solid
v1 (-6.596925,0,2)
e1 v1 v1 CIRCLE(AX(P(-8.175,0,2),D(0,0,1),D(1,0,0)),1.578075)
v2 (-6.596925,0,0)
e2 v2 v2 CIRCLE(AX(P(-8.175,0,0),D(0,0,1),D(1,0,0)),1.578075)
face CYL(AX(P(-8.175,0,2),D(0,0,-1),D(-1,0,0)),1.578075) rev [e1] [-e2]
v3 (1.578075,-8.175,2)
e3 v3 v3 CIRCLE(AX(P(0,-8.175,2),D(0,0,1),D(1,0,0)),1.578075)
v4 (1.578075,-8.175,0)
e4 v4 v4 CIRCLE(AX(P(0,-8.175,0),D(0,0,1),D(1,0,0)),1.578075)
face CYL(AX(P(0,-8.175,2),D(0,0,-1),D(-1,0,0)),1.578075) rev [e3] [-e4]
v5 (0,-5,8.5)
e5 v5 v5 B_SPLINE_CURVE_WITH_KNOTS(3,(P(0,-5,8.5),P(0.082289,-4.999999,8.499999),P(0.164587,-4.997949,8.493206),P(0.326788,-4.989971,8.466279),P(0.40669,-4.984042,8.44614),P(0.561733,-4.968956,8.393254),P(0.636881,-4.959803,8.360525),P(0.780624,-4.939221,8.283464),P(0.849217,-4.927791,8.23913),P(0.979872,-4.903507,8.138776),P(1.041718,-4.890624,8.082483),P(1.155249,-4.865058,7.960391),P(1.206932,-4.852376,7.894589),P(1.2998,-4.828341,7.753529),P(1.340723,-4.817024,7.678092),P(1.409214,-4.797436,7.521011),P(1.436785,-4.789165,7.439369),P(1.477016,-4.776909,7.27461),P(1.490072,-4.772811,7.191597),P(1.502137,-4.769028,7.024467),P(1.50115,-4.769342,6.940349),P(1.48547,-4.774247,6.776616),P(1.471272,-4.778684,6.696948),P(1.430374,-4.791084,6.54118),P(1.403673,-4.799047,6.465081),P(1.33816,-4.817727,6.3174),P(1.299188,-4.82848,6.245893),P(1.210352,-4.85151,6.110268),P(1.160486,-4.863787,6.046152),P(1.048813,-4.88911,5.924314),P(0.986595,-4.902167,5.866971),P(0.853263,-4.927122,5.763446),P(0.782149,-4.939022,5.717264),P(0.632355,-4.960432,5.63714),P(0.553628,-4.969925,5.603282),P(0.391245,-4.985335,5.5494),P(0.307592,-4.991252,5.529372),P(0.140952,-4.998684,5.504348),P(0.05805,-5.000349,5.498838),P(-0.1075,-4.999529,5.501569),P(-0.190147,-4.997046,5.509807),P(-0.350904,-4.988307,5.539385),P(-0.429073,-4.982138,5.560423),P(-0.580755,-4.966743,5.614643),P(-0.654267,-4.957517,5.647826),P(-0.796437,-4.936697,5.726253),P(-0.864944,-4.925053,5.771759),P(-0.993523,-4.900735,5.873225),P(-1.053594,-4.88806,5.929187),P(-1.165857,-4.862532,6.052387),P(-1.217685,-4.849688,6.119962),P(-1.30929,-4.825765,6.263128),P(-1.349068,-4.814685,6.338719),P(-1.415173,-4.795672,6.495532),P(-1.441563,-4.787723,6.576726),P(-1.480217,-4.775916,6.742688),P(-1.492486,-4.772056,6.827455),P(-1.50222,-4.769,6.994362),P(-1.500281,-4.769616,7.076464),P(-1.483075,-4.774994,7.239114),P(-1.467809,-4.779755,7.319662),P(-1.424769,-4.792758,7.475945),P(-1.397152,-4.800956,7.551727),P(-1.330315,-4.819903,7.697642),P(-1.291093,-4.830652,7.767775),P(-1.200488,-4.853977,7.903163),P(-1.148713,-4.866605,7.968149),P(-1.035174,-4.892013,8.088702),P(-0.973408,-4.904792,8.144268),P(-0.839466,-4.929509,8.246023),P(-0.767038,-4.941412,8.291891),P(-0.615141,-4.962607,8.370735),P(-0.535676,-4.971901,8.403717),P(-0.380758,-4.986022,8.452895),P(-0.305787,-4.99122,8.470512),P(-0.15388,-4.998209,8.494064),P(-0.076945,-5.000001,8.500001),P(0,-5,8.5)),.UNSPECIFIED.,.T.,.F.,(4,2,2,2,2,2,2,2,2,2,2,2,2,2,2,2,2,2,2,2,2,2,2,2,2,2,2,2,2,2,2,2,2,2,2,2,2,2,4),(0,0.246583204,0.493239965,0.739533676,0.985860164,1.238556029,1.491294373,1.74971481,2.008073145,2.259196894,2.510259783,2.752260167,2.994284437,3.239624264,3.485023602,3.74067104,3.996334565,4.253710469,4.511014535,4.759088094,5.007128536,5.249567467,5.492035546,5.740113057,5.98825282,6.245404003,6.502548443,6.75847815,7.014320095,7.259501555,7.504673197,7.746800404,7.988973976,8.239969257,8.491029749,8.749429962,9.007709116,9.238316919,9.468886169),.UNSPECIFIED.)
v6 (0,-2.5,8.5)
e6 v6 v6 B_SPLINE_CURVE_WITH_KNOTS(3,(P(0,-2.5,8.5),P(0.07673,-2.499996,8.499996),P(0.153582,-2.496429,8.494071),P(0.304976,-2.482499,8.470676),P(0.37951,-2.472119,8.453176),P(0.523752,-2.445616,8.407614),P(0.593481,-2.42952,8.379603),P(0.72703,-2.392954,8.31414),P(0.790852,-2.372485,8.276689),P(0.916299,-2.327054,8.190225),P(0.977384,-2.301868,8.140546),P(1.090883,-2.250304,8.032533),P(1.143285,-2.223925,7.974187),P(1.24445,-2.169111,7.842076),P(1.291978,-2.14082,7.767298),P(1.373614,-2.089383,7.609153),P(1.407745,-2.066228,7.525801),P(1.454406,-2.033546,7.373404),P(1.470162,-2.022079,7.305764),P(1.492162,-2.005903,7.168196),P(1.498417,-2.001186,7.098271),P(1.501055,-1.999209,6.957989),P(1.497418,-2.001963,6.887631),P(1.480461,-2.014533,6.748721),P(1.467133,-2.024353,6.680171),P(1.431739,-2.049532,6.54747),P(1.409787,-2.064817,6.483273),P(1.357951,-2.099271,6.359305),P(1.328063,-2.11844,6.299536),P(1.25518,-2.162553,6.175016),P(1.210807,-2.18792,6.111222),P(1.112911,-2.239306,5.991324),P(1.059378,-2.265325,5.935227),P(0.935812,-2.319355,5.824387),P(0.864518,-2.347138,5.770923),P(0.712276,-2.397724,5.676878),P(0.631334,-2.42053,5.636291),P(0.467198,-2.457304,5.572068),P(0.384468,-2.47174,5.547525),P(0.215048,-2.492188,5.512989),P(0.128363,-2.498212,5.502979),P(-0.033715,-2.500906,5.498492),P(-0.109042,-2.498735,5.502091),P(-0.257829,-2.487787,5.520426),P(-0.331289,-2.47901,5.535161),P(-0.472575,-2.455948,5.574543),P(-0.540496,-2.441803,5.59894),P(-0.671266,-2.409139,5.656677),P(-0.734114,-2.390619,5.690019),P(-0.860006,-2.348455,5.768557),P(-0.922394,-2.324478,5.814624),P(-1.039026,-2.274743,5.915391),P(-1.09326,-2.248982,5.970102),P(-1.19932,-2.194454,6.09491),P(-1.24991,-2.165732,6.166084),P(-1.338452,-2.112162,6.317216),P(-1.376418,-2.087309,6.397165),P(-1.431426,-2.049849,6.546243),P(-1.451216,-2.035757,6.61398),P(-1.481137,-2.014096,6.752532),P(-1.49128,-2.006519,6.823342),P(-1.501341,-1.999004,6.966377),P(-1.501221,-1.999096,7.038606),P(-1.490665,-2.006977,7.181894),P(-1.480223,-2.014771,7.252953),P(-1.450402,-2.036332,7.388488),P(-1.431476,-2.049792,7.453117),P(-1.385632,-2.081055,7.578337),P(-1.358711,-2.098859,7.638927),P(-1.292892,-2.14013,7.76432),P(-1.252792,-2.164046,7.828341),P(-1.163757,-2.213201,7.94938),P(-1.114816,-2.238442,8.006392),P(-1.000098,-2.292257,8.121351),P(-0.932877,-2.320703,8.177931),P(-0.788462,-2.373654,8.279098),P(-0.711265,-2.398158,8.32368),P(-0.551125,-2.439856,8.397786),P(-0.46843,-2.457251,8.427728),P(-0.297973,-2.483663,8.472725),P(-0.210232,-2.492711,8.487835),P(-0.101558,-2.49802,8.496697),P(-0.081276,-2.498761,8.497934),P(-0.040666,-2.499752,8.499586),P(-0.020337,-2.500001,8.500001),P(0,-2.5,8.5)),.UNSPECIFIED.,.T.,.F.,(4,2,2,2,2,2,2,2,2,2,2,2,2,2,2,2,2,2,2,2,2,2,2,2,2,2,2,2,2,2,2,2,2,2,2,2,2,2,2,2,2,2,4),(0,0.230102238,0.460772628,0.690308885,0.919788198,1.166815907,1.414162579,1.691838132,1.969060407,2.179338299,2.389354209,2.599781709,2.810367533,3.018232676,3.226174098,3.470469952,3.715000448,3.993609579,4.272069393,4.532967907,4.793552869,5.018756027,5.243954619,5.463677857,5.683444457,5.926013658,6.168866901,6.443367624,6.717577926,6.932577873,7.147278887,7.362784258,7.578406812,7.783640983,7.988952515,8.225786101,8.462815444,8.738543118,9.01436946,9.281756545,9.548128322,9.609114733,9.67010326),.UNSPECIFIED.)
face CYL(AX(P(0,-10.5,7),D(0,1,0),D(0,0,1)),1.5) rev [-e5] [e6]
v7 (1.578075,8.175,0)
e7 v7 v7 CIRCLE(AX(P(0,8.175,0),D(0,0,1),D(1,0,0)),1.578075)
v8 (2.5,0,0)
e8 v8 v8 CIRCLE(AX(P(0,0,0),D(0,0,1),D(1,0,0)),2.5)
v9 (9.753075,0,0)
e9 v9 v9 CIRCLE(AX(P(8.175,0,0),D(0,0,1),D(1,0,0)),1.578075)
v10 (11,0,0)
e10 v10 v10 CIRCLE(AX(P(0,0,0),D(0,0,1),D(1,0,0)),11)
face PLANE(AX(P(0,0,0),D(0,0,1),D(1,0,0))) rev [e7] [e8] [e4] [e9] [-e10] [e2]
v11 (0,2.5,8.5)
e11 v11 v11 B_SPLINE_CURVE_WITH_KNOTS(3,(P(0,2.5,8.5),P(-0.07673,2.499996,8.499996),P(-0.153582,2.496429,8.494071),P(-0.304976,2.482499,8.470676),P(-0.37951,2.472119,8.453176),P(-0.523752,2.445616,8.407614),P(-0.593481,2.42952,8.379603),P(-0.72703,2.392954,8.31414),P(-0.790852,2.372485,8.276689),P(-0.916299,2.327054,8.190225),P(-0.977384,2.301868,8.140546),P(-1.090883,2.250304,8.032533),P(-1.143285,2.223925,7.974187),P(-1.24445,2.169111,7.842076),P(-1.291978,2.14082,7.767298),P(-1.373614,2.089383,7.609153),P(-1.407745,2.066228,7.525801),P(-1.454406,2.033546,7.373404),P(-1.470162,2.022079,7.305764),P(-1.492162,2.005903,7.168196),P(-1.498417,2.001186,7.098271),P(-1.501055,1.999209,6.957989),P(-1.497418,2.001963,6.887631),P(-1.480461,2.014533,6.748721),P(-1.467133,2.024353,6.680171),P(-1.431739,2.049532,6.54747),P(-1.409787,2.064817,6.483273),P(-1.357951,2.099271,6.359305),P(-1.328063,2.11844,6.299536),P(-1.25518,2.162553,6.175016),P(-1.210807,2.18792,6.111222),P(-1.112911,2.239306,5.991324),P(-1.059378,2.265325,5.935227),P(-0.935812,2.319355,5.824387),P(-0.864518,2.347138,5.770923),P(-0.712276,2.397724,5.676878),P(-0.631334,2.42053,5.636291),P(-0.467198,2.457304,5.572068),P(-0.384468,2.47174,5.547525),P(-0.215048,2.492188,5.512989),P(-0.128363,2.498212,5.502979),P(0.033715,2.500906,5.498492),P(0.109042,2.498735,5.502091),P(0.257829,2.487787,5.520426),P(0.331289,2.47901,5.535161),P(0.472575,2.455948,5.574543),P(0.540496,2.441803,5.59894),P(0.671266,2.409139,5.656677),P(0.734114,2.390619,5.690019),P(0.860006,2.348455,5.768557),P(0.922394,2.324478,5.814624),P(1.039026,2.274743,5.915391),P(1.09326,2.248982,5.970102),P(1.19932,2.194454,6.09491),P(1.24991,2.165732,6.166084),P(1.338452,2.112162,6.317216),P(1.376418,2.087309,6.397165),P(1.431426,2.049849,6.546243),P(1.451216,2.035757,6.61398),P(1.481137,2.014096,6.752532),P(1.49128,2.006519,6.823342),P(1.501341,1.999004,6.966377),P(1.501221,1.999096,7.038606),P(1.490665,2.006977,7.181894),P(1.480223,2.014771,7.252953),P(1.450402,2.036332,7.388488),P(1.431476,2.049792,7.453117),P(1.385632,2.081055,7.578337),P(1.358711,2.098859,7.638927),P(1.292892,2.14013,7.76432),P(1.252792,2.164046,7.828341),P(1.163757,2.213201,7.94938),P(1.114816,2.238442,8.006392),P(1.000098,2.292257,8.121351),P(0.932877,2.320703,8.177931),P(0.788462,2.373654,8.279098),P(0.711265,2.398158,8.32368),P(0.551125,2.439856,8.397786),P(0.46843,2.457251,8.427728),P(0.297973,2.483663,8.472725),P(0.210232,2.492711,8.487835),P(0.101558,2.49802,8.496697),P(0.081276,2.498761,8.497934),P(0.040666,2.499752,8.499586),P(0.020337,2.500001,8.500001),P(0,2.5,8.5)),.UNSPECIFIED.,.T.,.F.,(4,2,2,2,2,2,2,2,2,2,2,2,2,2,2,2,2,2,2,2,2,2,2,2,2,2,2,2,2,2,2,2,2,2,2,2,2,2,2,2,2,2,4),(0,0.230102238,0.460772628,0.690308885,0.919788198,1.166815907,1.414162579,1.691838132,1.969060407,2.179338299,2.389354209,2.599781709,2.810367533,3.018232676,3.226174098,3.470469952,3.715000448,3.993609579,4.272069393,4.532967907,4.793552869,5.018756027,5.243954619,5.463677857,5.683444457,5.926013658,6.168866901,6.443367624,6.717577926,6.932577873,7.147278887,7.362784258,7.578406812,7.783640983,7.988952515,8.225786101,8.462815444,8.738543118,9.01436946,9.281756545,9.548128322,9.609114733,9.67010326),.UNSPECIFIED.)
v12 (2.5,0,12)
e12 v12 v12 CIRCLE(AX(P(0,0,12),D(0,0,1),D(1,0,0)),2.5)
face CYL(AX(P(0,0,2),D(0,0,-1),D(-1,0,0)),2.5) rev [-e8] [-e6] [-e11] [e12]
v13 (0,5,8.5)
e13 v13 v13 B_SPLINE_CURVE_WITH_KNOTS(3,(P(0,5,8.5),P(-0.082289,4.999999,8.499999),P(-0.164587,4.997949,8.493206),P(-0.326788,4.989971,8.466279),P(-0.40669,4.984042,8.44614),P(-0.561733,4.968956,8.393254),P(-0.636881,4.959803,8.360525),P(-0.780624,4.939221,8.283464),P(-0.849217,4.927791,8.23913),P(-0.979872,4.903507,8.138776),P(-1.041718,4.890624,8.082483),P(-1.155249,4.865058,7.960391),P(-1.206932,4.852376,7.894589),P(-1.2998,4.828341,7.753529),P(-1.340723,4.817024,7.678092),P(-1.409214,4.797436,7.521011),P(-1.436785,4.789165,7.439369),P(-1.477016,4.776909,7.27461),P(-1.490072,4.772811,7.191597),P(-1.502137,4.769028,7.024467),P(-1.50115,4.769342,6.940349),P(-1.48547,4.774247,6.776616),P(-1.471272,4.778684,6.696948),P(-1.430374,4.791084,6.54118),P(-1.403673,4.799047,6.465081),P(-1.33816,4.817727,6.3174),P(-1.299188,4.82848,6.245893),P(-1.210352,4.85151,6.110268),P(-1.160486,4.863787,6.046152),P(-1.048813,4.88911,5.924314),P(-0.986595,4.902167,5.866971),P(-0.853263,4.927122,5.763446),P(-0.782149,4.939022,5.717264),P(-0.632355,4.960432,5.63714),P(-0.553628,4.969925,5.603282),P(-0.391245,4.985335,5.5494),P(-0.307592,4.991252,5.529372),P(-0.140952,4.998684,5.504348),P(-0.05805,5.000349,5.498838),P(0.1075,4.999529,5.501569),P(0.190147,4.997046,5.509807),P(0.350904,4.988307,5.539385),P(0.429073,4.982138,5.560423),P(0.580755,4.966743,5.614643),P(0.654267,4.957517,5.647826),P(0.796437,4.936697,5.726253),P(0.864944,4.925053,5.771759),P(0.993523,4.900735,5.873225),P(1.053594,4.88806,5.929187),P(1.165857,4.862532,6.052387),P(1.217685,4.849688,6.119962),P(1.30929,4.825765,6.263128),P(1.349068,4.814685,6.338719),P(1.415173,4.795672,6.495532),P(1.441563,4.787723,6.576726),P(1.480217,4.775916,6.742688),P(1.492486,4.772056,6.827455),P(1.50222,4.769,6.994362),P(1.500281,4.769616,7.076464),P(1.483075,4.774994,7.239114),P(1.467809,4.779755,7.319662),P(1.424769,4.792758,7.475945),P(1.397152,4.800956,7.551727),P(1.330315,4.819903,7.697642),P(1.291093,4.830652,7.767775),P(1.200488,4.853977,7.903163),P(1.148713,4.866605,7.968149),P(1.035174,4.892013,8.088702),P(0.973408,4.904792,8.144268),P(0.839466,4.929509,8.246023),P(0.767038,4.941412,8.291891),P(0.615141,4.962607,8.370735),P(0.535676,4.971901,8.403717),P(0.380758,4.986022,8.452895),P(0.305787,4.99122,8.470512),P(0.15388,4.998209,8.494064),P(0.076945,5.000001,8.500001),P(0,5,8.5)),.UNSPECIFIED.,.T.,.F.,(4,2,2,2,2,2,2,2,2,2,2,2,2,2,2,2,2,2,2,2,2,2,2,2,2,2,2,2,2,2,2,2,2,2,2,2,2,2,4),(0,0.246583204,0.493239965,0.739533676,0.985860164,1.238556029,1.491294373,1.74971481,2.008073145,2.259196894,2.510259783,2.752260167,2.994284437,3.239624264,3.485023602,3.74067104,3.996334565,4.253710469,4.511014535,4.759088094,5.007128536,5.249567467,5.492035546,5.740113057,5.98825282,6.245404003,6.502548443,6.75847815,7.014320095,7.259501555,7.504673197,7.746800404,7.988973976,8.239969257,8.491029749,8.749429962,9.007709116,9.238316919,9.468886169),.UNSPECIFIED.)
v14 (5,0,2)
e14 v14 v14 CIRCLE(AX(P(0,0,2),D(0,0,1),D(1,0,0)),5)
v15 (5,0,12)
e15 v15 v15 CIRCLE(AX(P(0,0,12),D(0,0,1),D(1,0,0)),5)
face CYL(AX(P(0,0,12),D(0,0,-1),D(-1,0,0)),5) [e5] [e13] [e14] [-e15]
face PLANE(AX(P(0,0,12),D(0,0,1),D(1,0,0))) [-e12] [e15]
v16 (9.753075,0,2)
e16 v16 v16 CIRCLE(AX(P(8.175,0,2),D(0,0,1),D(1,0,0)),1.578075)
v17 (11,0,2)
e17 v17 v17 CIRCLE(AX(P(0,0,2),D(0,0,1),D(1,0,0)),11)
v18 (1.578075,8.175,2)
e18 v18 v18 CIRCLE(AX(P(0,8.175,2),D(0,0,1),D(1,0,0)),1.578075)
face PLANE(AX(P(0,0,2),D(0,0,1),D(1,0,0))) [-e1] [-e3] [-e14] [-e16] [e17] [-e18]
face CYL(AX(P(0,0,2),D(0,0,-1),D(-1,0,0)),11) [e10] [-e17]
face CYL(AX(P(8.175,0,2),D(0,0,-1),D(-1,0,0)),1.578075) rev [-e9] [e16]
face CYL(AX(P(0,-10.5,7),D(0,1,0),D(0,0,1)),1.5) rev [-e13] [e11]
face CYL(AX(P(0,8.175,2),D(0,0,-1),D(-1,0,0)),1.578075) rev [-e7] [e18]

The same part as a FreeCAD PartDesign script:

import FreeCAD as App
import Part
import Sketcher

V = App.Vector
Q = App.Units.Quantity

doc = App.newDocument("Part")
body = doc.addObject("PartDesign::Body", "Body")

sketch1 = body.newObject("Sketcher::SketchObject", "Sketch")
sketch1.AttachmentSupport = (doc.getObject("XY_Plane"), [""])
sketch1.MapMode = "FlatFace"
sketch1.addGeometry(Part.Circle(V(0, 0, 0), V(0, 0, 1), 11), False)
sketch1.addGeometry(Part.Circle(V(0, -8.2, 0), V(0, 0, 1), 1.6), False)
sketch1.addGeometry(Part.Circle(V(-8.2, 0, 0), V(0, 0, 1), 1.6), False)
sketch1.addGeometry(Part.Circle(V(0, 0, 0), V(0, 0, 1), 2.5), False)
sketch1.addGeometry(Part.Circle(V(8.2, 0, 0), V(0, 0, 1), 1.6), False)
sketch1.addGeometry(Part.Circle(V(0, 8.2, 0), V(0, 0, 1), 1.6), False)
sketch1.addConstraint(Sketcher.Constraint("Coincident", 0, 3, -1, 1))
sketch1.addConstraint(Sketcher.Constraint("Coincident", 3, 3, -1, 1))
sketch1.addConstraint(Sketcher.Constraint("Equal", 1, 2))
sketch1.addConstraint(Sketcher.Constraint("Equal", 2, 4))
sketch1.addConstraint(Sketcher.Constraint("Equal", 4, 5))
sketch1.addConstraint(Sketcher.Constraint("Symmetric", 2, 3, 4, 3, -1, 1))
sketch1.addConstraint(Sketcher.Constraint("Symmetric", 1, 3, 5, 3, -1, 1))
sketch1.addConstraint(Sketcher.Constraint("PointOnObject", 1, 3, -2))
sketch1.addConstraint(Sketcher.Constraint("PointOnObject", 2, 3, -1))
sketch1.addConstraint(Sketcher.Constraint("Diameter", 0, Q("22 mm")))
sketch1.addConstraint(Sketcher.Constraint("Diameter", 3, Q("5 mm")))
sketch1.addConstraint(Sketcher.Constraint("Diameter", 1, Q("3.156151 mm")))
sketch1.addConstraint(Sketcher.Constraint("DistanceX", 2, 3, 4, 3, Q("16.35 mm")))
sketch1.addConstraint(Sketcher.Constraint("DistanceY", 1, 3, 5, 3, Q("16.35 mm")))
pad1 = body.newObject("PartDesign::Pad", "Pad")
pad1.Profile = sketch1
pad1.Length = 2

sketch2 = body.newObject("Sketcher::SketchObject", "Sketch001")
sketch2.AttachmentSupport = (doc.getObject("XY_Plane"), [""])
sketch2.MapMode = "FlatFace"
sketch2.AttachmentOffset = App.Placement(V(0, 0, 2), App.Rotation())
sketch2.addGeometry(Part.Circle(V(0, 0, 0), V(0, 0, 1), 5), False)
sketch2.addGeometry(Part.Circle(V(0, 0, 0), V(0, 0, 1), 2.5), False)
sketch2.addConstraint(Sketcher.Constraint("Coincident", 0, 3, -1, 1))
sketch2.addConstraint(Sketcher.Constraint("Coincident", 1, 3, -1, 1))
sketch2.addConstraint(Sketcher.Constraint("Diameter", 0, Q("10 mm")))
sketch2.addConstraint(Sketcher.Constraint("Diameter", 1, Q("5 mm")))
pad2 = body.newObject("PartDesign::Pad", "Pad001")
pad2.Profile = sketch2
pad2.Length = 10

sketch3 = body.newObject("Sketcher::SketchObject", "Sketch002")
sketch3.AttachmentSupport = (doc.getObject("XZ_Plane"), [""])
sketch3.MapMode = "FlatFace"
sketch3.addGeometry(Part.Circle(V(0, 7, 0), V(0, 0, 1), 1.5), False)
sketch3.addConstraint(Sketcher.Constraint("PointOnObject", 0, 3, -2))
sketch3.addConstraint(Sketcher.Constraint("Diameter", 0, Q("3 mm")))
sketch3.addConstraint(Sketcher.Constraint("DistanceY", -1, 1, 0, 3, Q("7 mm")))
pocket1 = body.newObject("PartDesign::Pocket", "Pocket")
pocket1.Profile = sketch3
pocket1.Length = 21
pocket1.Midplane = True

doc.recompute()
